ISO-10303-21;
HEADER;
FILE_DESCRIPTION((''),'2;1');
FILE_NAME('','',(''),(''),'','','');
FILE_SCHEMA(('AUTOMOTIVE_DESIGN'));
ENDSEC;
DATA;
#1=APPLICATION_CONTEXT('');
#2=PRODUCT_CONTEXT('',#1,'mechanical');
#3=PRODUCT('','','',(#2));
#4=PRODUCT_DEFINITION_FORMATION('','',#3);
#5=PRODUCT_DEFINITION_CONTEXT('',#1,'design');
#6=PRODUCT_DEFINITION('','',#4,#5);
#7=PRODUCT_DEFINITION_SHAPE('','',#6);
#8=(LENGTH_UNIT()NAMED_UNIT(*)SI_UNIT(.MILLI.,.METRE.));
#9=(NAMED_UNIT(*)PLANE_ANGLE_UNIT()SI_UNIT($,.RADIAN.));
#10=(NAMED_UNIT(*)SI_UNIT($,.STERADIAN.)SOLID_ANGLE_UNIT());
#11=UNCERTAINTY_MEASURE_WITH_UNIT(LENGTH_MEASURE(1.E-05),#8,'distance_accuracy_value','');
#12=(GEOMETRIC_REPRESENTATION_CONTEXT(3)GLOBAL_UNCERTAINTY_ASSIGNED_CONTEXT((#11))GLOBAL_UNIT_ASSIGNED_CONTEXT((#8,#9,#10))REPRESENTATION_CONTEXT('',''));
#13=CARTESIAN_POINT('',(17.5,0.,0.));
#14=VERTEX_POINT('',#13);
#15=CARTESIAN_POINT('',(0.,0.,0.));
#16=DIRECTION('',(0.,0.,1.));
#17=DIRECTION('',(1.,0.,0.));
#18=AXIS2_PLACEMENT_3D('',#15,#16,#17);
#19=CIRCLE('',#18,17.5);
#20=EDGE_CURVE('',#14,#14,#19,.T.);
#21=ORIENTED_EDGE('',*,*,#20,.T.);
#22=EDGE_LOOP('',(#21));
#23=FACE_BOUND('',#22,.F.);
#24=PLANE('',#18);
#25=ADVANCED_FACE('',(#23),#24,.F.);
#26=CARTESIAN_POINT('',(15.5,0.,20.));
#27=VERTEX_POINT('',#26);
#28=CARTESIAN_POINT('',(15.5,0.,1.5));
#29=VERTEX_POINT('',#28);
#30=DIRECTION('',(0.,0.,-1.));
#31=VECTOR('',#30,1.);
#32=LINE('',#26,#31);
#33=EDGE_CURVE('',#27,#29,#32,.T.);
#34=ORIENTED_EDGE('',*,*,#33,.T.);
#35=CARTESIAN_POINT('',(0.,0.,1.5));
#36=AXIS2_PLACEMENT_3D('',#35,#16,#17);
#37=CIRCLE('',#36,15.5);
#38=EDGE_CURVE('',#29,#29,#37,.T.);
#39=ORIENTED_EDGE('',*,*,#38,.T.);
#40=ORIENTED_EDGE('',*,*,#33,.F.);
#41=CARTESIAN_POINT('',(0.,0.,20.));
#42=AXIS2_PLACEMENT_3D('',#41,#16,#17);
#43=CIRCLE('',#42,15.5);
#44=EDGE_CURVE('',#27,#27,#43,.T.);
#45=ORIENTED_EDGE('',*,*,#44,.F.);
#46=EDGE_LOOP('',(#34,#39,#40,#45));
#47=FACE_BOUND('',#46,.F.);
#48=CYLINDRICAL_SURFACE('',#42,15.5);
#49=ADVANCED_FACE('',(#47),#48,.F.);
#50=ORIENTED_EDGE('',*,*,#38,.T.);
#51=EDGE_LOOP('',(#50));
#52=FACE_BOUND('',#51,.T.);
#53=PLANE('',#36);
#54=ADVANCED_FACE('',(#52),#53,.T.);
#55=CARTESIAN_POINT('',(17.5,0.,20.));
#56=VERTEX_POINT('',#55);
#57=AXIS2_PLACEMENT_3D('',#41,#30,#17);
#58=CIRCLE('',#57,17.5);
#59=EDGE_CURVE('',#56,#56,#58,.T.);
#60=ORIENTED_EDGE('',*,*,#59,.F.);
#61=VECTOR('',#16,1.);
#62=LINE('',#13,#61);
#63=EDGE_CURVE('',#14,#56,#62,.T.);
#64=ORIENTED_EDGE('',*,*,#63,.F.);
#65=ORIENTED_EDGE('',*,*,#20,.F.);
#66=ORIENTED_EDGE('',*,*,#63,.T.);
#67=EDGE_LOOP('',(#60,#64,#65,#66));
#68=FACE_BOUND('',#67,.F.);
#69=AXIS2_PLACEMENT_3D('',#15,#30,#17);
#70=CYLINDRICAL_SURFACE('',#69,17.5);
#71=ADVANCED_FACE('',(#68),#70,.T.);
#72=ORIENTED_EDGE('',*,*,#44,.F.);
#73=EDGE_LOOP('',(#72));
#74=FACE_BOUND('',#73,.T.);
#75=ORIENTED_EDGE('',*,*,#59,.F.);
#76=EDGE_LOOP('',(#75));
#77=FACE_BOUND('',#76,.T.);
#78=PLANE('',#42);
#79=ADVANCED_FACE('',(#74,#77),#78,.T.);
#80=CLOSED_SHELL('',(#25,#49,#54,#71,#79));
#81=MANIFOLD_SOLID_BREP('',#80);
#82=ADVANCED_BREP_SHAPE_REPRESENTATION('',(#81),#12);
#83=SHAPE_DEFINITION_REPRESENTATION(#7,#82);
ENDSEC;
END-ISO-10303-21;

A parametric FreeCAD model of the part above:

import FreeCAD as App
import Part
import Sketcher
from FreeCAD import Vector

doc = App.newDocument("Part")
body = doc.addObject("PartDesign::Body", "Body")

sketch1 = doc.addObject("Sketcher::SketchObject", "Sketch")
body.addObject(sketch1)
sketch1.AttachmentSupport = (doc.XY_Plane, [""])
sketch1.MapMode = "FlatFace"
sketch1.addGeometry(Part.Circle(Vector(0, 0, 0), Vector(0, 0, 1), 18), False)
sketch1.addConstraint([
    Sketcher.Constraint("Coincident", 0, 3, -1, 1),
    Sketcher.Constraint("Diameter", 0, 35.0),
])
pad1 = doc.addObject("PartDesign::Pad", "Pad")
body.addObject(pad1)
pad1.Profile = sketch1
pad1.Length = 20

sketch2 = doc.addObject("Sketcher::SketchObject", "Sketch001")
body.addObject(sketch2)
sketch2.AttachmentSupport = (doc.XY_Plane, [""])
sketch2.MapMode = "FlatFace"
sketch2.AttachmentOffset = App.Placement(Vector(0, 0, 20), App.Rotation())
sketch2.addGeometry(Part.Circle(Vector(0, 0, 0), Vector(0, 0, 1), 16), False)
sketch2.addConstraint([
    Sketcher.Constraint("Coincident", 0, 3, -1, 1),
    Sketcher.Constraint("Diameter", 0, 31.0),
])
pocket1 = doc.addObject("PartDesign::Pocket", "Pocket")
body.addObject(pocket1)
pocket1.Profile = sketch2
pocket1.Length = 18.5

doc.recompute()
